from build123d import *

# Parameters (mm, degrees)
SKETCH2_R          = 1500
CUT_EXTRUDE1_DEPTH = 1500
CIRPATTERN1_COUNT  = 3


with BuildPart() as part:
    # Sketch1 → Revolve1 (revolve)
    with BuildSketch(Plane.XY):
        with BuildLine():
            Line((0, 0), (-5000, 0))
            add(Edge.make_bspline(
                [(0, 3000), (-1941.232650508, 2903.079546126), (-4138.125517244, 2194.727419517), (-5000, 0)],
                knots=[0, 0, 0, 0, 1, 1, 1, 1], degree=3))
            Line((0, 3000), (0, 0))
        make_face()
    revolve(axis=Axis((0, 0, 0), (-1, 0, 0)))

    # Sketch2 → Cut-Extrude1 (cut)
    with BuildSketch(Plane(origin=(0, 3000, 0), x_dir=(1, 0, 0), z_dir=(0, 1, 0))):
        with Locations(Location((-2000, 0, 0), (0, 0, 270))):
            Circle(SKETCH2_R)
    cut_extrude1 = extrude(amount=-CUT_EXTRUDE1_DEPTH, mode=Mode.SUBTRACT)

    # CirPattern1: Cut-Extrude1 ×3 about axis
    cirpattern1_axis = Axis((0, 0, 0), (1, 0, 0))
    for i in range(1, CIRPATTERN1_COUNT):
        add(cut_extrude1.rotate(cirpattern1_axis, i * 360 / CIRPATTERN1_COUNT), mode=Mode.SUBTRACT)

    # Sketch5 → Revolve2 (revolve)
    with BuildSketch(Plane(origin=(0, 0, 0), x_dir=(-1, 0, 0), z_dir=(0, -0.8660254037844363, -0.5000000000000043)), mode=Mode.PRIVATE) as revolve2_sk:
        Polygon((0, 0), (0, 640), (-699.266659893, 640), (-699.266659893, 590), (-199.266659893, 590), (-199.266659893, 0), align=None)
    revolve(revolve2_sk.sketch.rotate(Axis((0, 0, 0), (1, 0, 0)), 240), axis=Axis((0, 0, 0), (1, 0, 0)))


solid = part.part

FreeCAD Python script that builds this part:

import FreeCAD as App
import Part
import Sketcher

V = App.Vector
Q = App.Units.Quantity


def add_polygon(sketch, points):
    """Adds a closed chain of lines whose ends are joined by coincident constraints."""
    first, n = sketch.GeometryCount, len(points)
    for a, b in zip(points, points[1:] + points[:1]):
        sketch.addGeometry(Part.LineSegment(App.Vector(*a, 0), App.Vector(*b, 0)), False)
    for i in range(n):
        sketch.addConstraint(Sketcher.Constraint("Coincident", first + i, 2, first + (i + 1) % n, 1))

doc = App.newDocument("Part")
body = doc.addObject("PartDesign::Body", "Body")

# Sketch on XY plane
sketch1 = doc.addObject("Sketcher::SketchObject", "Sketch")
body.addObject(sketch1)
sketch1.AttachmentSupport = (doc.XY_Plane, [""])
sketch1.MapMode = "FlatFace"
sketch1.addGeometry(Part.LineSegment(V(-5000, 0, 0), V(0, 0, 0)), False)
sketch1.addGeometry(Part.LineSegment(V(0, 0, 0), V(0, 3000, 0)), False)
sketch1.addGeometry(Part.BSplineCurve([V(0, 3000, 0), V(-1941.232651, 2903.079546, 0), V(-4138.125517, 2194.72742, 0), V(-5000, 0, 0)], [4, 4], [0, 1], False, 3, [1, 1, 1, 1], False), False)
sketch1.addConstraint(Sketcher.Constraint("Block", 2))
sketch1.addConstraint(Sketcher.Constraint("Coincident", 0, 2, 1, 1))
sketch1.addConstraint(Sketcher.Constraint("Coincident", 1, 2, 2, 1))
sketch1.addConstraint(Sketcher.Constraint("Coincident", 2, 2, 0, 1))
sketch1.addConstraint(Sketcher.Constraint("Horizontal", 0))
sketch1.addConstraint(Sketcher.Constraint("Vertical", 1))
revolution = doc.addObject("PartDesign::Revolution", "Revolution")
body.addObject(revolution)
revolution.Profile = sketch1
revolution.ReferenceAxis = (sketch1, ["H_Axis"])
revolution.Angle = 360

# Sketch on XZ plane
sketch2 = doc.addObject("Sketcher::SketchObject", "Sketch001")
body.addObject(sketch2)
sketch2.AttachmentSupport = (doc.XZ_Plane, [""])
sketch2.MapMode = "FlatFace"
sketch2.AttachmentOffset = App.Placement(V(0, 0, -3000), App.Rotation())
sketch2.addGeometry(Part.Circle(V(-2000, 0, 0), V(0, 0, 1), 1500), False)
sketch2.addConstraint(Sketcher.Constraint("PointOnObject", 0, 3, -1))
sketch2.addConstraint(Sketcher.Constraint("Diameter", 0, Q("3000 mm")))
sketch2.addConstraint(Sketcher.Constraint("DistanceX", 0, 3, -1, 1, Q("2000 mm")))
pocket1 = doc.addObject("PartDesign::Pocket", "Pocket")
body.addObject(pocket1)
pocket1.Profile = sketch2
pocket1.Length = 1500
pocket1.Reversed = True
doc.recompute()

polarpattern = doc.addObject("PartDesign::PolarPattern", "PolarPattern")
body.addObject(polarpattern)
polarpattern.Originals = [pocket1]
polarpattern.Axis = (doc.X_Axis, [""])
polarpattern.Angle = 360
polarpattern.Occurrences = 3
body.Tip = polarpattern

# Sketch on an angled plane
sketch3 = doc.addObject("Sketcher::SketchObject", "Sketch002")
body.addObject(sketch3)
sketch3.Placement = App.Placement(V(0, 0, 0), App.Rotation(V(-1, 0, 0), V(0, 0.5, -0.866025404), V(0, -0.866025404, -0.5), "ZXY"))
add_polygon(sketch3, [(0, 0), (0, 640), (-699.26666, 640), (-699.26666, 590), (-199.26666, 590), (-199.26666, 0)])  # lines 0-5
sketch3.addConstraint(Sketcher.Constraint("Vertical", 0))
sketch3.addConstraint(Sketcher.Constraint("Horizontal", 1))
sketch3.addConstraint(Sketcher.Constraint("Vertical", 2))
sketch3.addConstraint(Sketcher.Constraint("Horizontal", 3))
sketch3.addConstraint(Sketcher.Constraint("Vertical", 4))
sketch3.addConstraint(Sketcher.Constraint("Horizontal", 5))
sketch3.addConstraint(Sketcher.Constraint("Coincident", 5, 2, -1, 1))
sketch3.addConstraint(Sketcher.Constraint("DistanceX", 3, 1, 3, 2, Q("500 mm")))
sketch3.addConstraint(Sketcher.Constraint("DistanceY", 0, 1, 0, 2, Q("640 mm")))
sketch3.addConstraint(Sketcher.Constraint("DistanceY", 2, 2, 2, 1, Q("50 mm")))
sketch3.addConstraint(Sketcher.Constraint("DistanceX", 1, 2, 1, 1, Q("699.26666 mm")))
revolution2 = doc.addObject("PartDesign::Revolution", "Revolution001")
body.addObject(revolution2)
revolution2.Profile = sketch3
revolution2.ReferenceAxis = (sketch3, ["H_Axis"])
revolution2.Angle = 360

doc.recompute()
